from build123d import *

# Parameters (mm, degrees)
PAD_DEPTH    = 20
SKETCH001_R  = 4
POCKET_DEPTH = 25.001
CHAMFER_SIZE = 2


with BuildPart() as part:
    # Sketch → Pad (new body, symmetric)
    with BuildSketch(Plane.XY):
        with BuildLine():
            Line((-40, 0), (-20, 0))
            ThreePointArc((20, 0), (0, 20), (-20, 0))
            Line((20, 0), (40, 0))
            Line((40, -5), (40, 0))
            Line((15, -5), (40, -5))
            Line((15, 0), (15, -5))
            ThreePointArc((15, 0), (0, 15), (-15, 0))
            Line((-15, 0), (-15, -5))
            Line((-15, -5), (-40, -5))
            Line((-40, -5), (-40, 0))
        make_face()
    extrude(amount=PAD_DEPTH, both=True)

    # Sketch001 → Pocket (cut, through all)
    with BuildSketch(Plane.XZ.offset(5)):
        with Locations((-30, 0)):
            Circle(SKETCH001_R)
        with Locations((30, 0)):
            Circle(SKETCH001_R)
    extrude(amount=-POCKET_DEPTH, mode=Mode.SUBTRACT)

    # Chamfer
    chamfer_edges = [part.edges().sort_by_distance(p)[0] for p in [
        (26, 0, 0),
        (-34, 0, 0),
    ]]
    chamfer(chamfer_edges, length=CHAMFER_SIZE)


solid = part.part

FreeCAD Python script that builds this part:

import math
import FreeCAD as App
import Part
import Sketcher
from FreeCAD import Vector


def edges_at(feature, points):
    """Names of the edges that pass closest to the given points."""
    edges = feature.Shape.Edges
    near = lambda p: min(range(len(edges)), key=lambda i: edges[i].distToShape(Part.Vertex(*p))[0])
    return sorted({f"Edge{near(p) + 1}" for p in points})

doc = App.newDocument("Part")
body = doc.addObject("PartDesign::Body", "Body")

# Sketch on XY plane
sketch1 = body.newObject("Sketcher::SketchObject", "Sketch")
sketch1.AttachmentSupport = (doc.getObject("XY_Plane"), [""])
sketch1.MapMode = "FlatFace"
sketch1.addGeometry(Part.LineSegment(Vector(-20, 0, 0), Vector(-40, 0, 0)), False)
sketch1.addGeometry(Part.LineSegment(Vector(-40, 0, 0), Vector(-40, -5, 0)), False)
sketch1.addGeometry(Part.LineSegment(Vector(-40, -5, 0), Vector(-15, -5, 0)), False)
sketch1.addGeometry(Part.LineSegment(Vector(-15, -5, 0), Vector(-15, 0, 0)), False)
sketch1.addGeometry(Part.ArcOfCircle(Part.Circle(Vector(0, 0, 0), Vector(0, 0, 1), 15), math.radians(0), math.radians(180)), False)
sketch1.addGeometry(Part.LineSegment(Vector(15, 0, 0), Vector(15, -5, 0)), False)
sketch1.addGeometry(Part.LineSegment(Vector(15, -5, 0), Vector(40, -5, 0)), False)
sketch1.addGeometry(Part.LineSegment(Vector(40, -5, 0), Vector(40, 0, 0)), False)
sketch1.addGeometry(Part.LineSegment(Vector(40, 0, 0), Vector(20, 0, 0)), False)
sketch1.addGeometry(Part.ArcOfCircle(Part.Circle(Vector(0, 0, 0), Vector(0, 0, 1), 20), math.radians(0), math.radians(180)), False)
sketch1.addConstraint(Sketcher.Constraint("Coincident", 0, 2, 1, 1))
sketch1.addConstraint(Sketcher.Constraint("Coincident", 1, 2, 2, 1))
sketch1.addConstraint(Sketcher.Constraint("Coincident", 2, 2, 3, 1))
sketch1.addConstraint(Sketcher.Constraint("Tangent", 3, 2, 4, 2))
sketch1.addConstraint(Sketcher.Constraint("Tangent", 4, 1, 5, 1))
sketch1.addConstraint(Sketcher.Constraint("Coincident", 5, 2, 6, 1))
sketch1.addConstraint(Sketcher.Constraint("Coincident", 6, 2, 7, 1))
sketch1.addConstraint(Sketcher.Constraint("Coincident", 7, 2, 8, 1))
sketch1.addConstraint(Sketcher.Constraint("Coincident", 8, 2, 9, 1))
sketch1.addConstraint(Sketcher.Constraint("Coincident", 9, 2, 0, 1))
sketch1.addConstraint(Sketcher.Constraint("Horizontal", 0))
sketch1.addConstraint(Sketcher.Constraint("Vertical", 1))
sketch1.addConstraint(Sketcher.Constraint("Horizontal", 2))
sketch1.addConstraint(Sketcher.Constraint("Vertical", 3))
sketch1.addConstraint(Sketcher.Constraint("Vertical", 5))
sketch1.addConstraint(Sketcher.Constraint("Horizontal", 6))
sketch1.addConstraint(Sketcher.Constraint("Vertical", 7))
sketch1.addConstraint(Sketcher.Constraint("Horizontal", 8))
sketch1.addConstraint(Sketcher.Constraint("Coincident", 4, 3, -1, 1))
sketch1.addConstraint(Sketcher.Constraint("Coincident", 9, 3, -1, 1))
sketch1.addConstraint(Sketcher.Constraint("Symmetric", 0, 2, 7, 2, -1, 1))
sketch1.addConstraint(Sketcher.Constraint("PointOnObject", 0, 2, -1))
sketch1.addConstraint(Sketcher.Constraint("Horizontal", 2, 2, 5, 2))
sketch1.addConstraint(Sketcher.Constraint("Radius", 4, 15.0))
sketch1.addConstraint(Sketcher.Constraint("Radius", 9, 20.0))
sketch1.addConstraint(Sketcher.Constraint("DistanceX", 0, 2, 0, 1, 20.0))
sketch1.addConstraint(Sketcher.Constraint("DistanceY", 1, 2, 1, 1, 5.0))
pad1 = body.newObject("PartDesign::Pad", "Pad")
pad1.Profile = sketch1
pad1.Length = 40
pad1.Midplane = True

# Sketch on XZ plane
sketch2 = body.newObject("Sketcher::SketchObject", "Sketch001")
sketch2.AttachmentSupport = (doc.getObject("XZ_Plane"), [""])
sketch2.MapMode = "FlatFace"
sketch2.AttachmentOffset = App.Placement(Vector(0, 0, 5), App.Rotation())
sketch2.addGeometry(Part.Circle(Vector(-30, 0, 0), Vector(0, 0, 1), 4), False)
sketch2.addGeometry(Part.Circle(Vector(30, 0, 0), Vector(0, 0, 1), 4), False)
sketch2.addConstraint(Sketcher.Constraint("Equal", 0, 1))
sketch2.addConstraint(Sketcher.Constraint("Symmetric", 0, 3, 1, 3, -1, 1))
sketch2.addConstraint(Sketcher.Constraint("PointOnObject", 0, 3, -1))
sketch2.addConstraint(Sketcher.Constraint("Diameter", 0, 8.0))
sketch2.addConstraint(Sketcher.Constraint("DistanceX", 0, 3, -1, 1, 30.0))
pocket1 = body.newObject("PartDesign::Pocket", "Pocket")
pocket1.Profile = sketch2
pocket1.Type = "ThroughAll"
doc.recompute()

chamfer = body.newObject("PartDesign::Chamfer", "Chamfer")
chamfer.Base = (pocket1, edges_at(pocket1, [(26, 0, 0), (-34, 0, 0)]))
chamfer.Size = 2

doc.recompute()
